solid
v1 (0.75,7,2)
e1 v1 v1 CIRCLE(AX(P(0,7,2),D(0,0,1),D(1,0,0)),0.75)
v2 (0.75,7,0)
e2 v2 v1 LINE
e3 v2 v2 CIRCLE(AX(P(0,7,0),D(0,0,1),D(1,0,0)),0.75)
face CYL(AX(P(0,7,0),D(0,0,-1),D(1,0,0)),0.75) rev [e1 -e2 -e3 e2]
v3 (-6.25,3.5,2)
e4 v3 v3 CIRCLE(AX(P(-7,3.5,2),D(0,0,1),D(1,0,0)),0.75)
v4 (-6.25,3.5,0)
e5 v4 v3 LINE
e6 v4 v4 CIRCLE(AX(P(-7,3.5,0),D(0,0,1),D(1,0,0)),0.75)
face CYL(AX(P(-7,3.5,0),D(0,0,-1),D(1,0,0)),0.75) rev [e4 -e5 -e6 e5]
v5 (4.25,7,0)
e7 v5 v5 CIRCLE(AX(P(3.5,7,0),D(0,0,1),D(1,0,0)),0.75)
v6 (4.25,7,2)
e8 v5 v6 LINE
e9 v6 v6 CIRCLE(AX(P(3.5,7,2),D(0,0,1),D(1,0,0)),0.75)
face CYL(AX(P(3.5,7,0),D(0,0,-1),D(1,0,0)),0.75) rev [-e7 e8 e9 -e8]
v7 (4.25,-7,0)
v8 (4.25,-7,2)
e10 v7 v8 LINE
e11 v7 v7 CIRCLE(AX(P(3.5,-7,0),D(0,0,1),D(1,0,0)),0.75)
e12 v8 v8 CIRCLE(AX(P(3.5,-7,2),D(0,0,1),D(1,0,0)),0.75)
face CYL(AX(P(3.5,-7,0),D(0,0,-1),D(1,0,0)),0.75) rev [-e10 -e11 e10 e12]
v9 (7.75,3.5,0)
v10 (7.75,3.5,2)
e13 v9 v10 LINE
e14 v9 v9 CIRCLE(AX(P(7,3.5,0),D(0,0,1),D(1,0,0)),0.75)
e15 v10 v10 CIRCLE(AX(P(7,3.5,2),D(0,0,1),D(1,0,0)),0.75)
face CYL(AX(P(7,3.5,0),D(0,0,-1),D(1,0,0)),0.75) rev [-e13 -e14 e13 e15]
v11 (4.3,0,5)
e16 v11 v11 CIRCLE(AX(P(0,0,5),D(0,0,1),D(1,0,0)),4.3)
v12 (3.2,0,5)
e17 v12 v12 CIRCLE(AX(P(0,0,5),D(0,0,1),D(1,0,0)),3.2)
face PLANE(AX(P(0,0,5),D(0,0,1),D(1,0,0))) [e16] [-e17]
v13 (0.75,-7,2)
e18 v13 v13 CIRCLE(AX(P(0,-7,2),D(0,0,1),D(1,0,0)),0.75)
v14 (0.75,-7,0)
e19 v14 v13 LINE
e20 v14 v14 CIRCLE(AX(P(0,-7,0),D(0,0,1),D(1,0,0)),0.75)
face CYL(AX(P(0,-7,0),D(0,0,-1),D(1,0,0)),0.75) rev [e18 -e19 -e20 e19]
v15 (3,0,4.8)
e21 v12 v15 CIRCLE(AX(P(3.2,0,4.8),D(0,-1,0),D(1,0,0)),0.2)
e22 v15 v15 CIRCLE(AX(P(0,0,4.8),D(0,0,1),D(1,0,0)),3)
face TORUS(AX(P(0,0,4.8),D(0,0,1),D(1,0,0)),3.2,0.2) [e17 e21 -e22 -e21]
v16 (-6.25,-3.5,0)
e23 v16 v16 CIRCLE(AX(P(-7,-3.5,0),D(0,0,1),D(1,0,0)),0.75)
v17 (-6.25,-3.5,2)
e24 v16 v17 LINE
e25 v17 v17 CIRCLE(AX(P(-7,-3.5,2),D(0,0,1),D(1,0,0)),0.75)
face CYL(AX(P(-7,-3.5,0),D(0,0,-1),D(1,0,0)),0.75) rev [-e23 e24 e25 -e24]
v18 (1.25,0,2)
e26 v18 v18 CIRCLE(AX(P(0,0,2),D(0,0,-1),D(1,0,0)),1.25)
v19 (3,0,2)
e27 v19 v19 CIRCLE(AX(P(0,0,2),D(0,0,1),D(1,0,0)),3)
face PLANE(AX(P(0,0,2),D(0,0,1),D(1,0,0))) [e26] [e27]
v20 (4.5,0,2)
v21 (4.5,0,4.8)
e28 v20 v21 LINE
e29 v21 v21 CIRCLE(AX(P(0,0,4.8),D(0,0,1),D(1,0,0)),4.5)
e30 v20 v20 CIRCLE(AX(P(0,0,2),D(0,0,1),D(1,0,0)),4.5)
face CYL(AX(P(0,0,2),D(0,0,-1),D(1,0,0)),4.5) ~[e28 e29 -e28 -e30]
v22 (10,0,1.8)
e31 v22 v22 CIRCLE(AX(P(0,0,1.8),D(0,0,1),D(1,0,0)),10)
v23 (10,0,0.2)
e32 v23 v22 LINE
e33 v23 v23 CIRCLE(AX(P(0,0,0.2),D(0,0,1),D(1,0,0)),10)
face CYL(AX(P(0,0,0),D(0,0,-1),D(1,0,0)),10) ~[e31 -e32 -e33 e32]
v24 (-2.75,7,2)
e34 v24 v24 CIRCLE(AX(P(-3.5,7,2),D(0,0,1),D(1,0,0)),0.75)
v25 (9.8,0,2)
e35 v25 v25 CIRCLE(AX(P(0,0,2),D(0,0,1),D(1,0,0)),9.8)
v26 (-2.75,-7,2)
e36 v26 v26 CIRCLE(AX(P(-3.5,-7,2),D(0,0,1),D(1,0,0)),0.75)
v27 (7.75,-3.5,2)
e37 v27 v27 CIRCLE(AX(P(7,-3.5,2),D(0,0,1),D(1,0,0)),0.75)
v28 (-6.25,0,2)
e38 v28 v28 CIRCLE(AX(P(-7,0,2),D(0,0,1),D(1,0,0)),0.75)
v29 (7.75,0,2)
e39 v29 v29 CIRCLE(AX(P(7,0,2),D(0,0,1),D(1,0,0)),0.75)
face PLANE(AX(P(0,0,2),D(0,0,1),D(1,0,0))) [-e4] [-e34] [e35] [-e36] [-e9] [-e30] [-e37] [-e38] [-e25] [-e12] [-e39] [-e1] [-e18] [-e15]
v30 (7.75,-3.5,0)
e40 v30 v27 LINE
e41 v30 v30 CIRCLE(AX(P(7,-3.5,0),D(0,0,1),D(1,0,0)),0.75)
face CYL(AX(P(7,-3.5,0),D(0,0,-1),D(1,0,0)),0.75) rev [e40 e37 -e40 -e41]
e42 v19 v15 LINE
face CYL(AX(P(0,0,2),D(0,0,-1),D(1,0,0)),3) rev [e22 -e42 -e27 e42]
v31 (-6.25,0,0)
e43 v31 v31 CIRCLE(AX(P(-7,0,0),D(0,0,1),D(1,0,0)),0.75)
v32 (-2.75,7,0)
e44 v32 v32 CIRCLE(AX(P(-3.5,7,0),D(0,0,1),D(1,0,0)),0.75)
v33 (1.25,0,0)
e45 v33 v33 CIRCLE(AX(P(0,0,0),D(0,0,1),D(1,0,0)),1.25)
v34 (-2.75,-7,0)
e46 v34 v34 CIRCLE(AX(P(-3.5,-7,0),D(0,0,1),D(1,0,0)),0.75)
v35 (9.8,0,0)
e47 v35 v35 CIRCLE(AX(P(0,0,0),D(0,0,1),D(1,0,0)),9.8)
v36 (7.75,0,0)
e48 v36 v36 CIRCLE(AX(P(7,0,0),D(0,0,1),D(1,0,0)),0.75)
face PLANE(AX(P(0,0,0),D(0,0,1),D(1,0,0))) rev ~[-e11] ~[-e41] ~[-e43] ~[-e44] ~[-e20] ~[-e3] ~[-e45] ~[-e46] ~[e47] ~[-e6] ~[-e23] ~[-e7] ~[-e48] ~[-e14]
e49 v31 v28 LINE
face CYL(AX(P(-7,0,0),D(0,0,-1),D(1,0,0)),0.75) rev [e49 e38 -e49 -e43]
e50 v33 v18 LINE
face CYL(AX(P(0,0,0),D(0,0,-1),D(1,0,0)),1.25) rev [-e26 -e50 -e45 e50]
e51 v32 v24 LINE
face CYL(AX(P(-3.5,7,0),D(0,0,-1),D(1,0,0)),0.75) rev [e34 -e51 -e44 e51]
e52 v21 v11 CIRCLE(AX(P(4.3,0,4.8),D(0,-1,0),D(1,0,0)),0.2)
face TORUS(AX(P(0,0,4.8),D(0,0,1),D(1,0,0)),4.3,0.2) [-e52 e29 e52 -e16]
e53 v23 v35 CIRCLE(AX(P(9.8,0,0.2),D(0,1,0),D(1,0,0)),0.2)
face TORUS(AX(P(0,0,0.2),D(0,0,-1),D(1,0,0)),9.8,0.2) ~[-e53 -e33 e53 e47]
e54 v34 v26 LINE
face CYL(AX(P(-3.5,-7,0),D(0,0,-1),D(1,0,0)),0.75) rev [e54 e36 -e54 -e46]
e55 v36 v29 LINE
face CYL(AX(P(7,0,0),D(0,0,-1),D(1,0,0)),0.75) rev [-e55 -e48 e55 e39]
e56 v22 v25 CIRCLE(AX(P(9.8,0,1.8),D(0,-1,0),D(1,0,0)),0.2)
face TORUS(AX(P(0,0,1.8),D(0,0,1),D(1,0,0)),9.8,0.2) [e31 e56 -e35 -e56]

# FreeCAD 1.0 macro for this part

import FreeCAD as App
import Part
import Sketcher


def edges_at(feature, points):
    """Names of the edges that pass closest to the given points."""
    edges = feature.Shape.Edges
    near = lambda p: min(range(len(edges)), key=lambda i: edges[i].distToShape(Part.Vertex(*p))[0])
    return sorted({f"Edge{near(p) + 1}" for p in points})

doc = App.newDocument("Part")
params = doc.addObject("Spreadsheet::Sheet", "Params")
for row, (alias, value) in enumerate([
    ("sketch1_diameter", "20 mm"),
    ("sketch1_diameter2", "1.5 mm"),
    ("pad1_length", "2 mm"),
    ("sketch2_diameter", "9 mm"),
    ("sketch2_diameter2", "6 mm"),
    ("pad2_length", "3 mm"),
    ("sketch3_diameter", "2.5 mm"),
    ("pocket1_length", "5 mm"),
    ("fillet_radius", "0.2 mm"),
], start=1):
    params.set(f"A{row}", alias)
    params.set(f"B{row}", "=" + value)
    params.setAlias(f"B{row}", alias)

body = doc.addObject("PartDesign::Body", "Body")

# Sketch on XY plane
sketch1 = body.newObject("Sketcher::SketchObject", "Sketch")
sketch1.AttachmentSupport = (doc.getObject("XY_Plane"), [""])
sketch1.MapMode = "FlatFace"
sketch1.addGeometry(Part.Circle(App.Vector(0, 0, 0), App.Vector(0, 0, 1), 10), False)
sketch1.addGeometry(Part.Circle(App.Vector(-3.5, -7, 0), App.Vector(0, 0, 1), 0.8), False)
sketch1.addGeometry(Part.Circle(App.Vector(-7, -3.5, 0), App.Vector(0, 0, 1), 0.8), False)
sketch1.addGeometry(Part.Circle(App.Vector(0, -7, 0), App.Vector(0, 0, 1), 0.8), False)
sketch1.addGeometry(Part.Circle(App.Vector(3.5, -7, 0), App.Vector(0, 0, 1), 0.8), False)
sketch1.addGeometry(Part.Circle(App.Vector(7, -3.5, 0), App.Vector(0, 0, 1), 0.8), False)
sketch1.addGeometry(Part.Circle(App.Vector(-7, 0, 0), App.Vector(0, 0, 1), 0.8), False)
sketch1.addGeometry(Part.Circle(App.Vector(-7, 3.5, 0), App.Vector(0, 0, 1), 0.8), False)
sketch1.addGeometry(Part.Circle(App.Vector(-3.5, 7, 0), App.Vector(0, 0, 1), 0.8), False)
sketch1.addGeometry(Part.Circle(App.Vector(7, 0, 0), App.Vector(0, 0, 1), 0.8), False)
sketch1.addGeometry(Part.Circle(App.Vector(7, 3.5, 0), App.Vector(0, 0, 1), 0.8), False)
sketch1.addGeometry(Part.Circle(App.Vector(0, 7, 0), App.Vector(0, 0, 1), 0.8), False)
sketch1.addGeometry(Part.Circle(App.Vector(3.5, 7, 0), App.Vector(0, 0, 1), 0.8), False)
sketch1.addConstraint(Sketcher.Constraint("Coincident", 0, 3, -1, 1))
sketch1.addConstraint(Sketcher.Constraint("Equal", 1, 2))
sketch1.addConstraint(Sketcher.Constraint("Equal", 2, 3))
sketch1.addConstraint(Sketcher.Constraint("Equal", 3, 4))
sketch1.addConstraint(Sketcher.Constraint("Equal", 4, 5))
sketch1.addConstraint(Sketcher.Constraint("Equal", 5, 6))
sketch1.addConstraint(Sketcher.Constraint("Equal", 6, 7))
sketch1.addConstraint(Sketcher.Constraint("Equal", 7, 8))
sketch1.addConstraint(Sketcher.Constraint("Equal", 8, 9))
sketch1.addConstraint(Sketcher.Constraint("Equal", 9, 10))
sketch1.addConstraint(Sketcher.Constraint("Equal", 10, 11))
sketch1.addConstraint(Sketcher.Constraint("Equal", 11, 12))
sketch1.addConstraint(Sketcher.Constraint("Symmetric", 5, 3, 7, 3, -1, 1))
sketch1.addConstraint(Sketcher.Constraint("Symmetric", 4, 3, 8, 3, -1, 1))
sketch1.addConstraint(Sketcher.Constraint("Symmetric", 6, 3, 9, 3, -1, 1))
sketch1.addConstraint(Sketcher.Constraint("Symmetric", 2, 3, 10, 3, -1, 1))
sketch1.addConstraint(Sketcher.Constraint("Symmetric", 3, 3, 11, 3, -1, 1))
sketch1.addConstraint(Sketcher.Constraint("Symmetric", 1, 3, 12, 3, -1, 1))
sketch1.addConstraint(Sketcher.Constraint("Symmetric", 1, 3, 4, 3, -2))
sketch1.addConstraint(Sketcher.Constraint("Symmetric", 2, 3, 5, 3, -2))
sketch1.addConstraint(Sketcher.Constraint("PointOnObject", 3, 3, -2))
sketch1.addConstraint(Sketcher.Constraint("PointOnObject", 6, 3, -1))
sketch1.addConstraint(Sketcher.Constraint("Horizontal", 1, 3, 3, 3))
sketch1.addConstraint(Sketcher.Constraint("Vertical", 2, 3, 6, 3))
sketch1.addConstraint(Sketcher.Constraint("Diameter", 0, 20.0))
sketch1.addConstraint(Sketcher.Constraint("Diameter", 1, 1.5))
sketch1.addConstraint(Sketcher.Constraint("DistanceY", 1, 3, -1, 1, 7.0))
sketch1.addConstraint(Sketcher.Constraint("DistanceX", 2, 3, -1, 1, 7.0))
sketch1.addConstraint(Sketcher.Constraint("DistanceX", 1, 3, 4, 3, 7.0))
sketch1.addConstraint(Sketcher.Constraint("DistanceY", 2, 3, 7, 3, 7.0))
sketch1.setExpression("Constraints[24]", "Params.sketch1_diameter")
sketch1.setExpression("Constraints[25]", "Params.sketch1_diameter2")
pad1 = body.newObject("PartDesign::Pad", "Pad")
pad1.Profile = sketch1
pad1.setExpression("Length", "Params.pad1_length")

# Sketch on XY plane
sketch2 = body.newObject("Sketcher::SketchObject", "Sketch001")
sketch2.AttachmentSupport = (doc.getObject("XY_Plane"), [""])
sketch2.MapMode = "FlatFace"
sketch2.AttachmentOffset = App.Placement(App.Vector(0, 0, 2), App.Rotation())
sketch2.addGeometry(Part.Circle(App.Vector(0, 0, 0), App.Vector(0, 0, 1), 4.5), False)
sketch2.addGeometry(Part.Circle(App.Vector(0, 0, 0), App.Vector(0, 0, 1), 3), False)
sketch2.addConstraint(Sketcher.Constraint("Coincident", 0, 3, -1, 1))
sketch2.addConstraint(Sketcher.Constraint("Coincident", 1, 3, -1, 1))
sketch2.addConstraint(Sketcher.Constraint("Diameter", 0, 9.0))
sketch2.addConstraint(Sketcher.Constraint("Diameter", 1, 6.0))
sketch2.setExpression("Constraints[2]", "Params.sketch2_diameter")
sketch2.setExpression("Constraints[3]", "Params.sketch2_diameter2")
pad2 = body.newObject("PartDesign::Pad", "Pad001")
pad2.Profile = sketch2
pad2.setExpression("Length", "Params.pad2_length")

# Sketch on XY plane
sketch3 = body.newObject("Sketcher::SketchObject", "Sketch002")
sketch3.AttachmentSupport = (doc.getObject("XY_Plane"), [""])
sketch3.MapMode = "FlatFace"
sketch3.addGeometry(Part.Circle(App.Vector(0, 0, 0), App.Vector(0, 0, 1), 1.2), False)
sketch3.addConstraint(Sketcher.Constraint("Coincident", 0, 3, -1, 1))
sketch3.addConstraint(Sketcher.Constraint("Diameter", 0, 2.5))
sketch3.setExpression("Constraints[1]", "Params.sketch3_diameter")
pocket1 = body.newObject("PartDesign::Pocket", "Pocket")
pocket1.Profile = sketch3
pocket1.setExpression("Length", "Params.pocket1_length")
pocket1.Reversed = True
doc.recompute()

fillet = body.newObject("PartDesign::Fillet", "Fillet")
fillet.Base = (pocket1, edges_at(pocket1, [
    (-10, 0, 0),
    (-10, 0, 2),
    (-4.5, 0, 5),
    (-3, 0, 5),
]))
fillet.setExpression("Radius", "Params.fillet_radius")

doc.recompute()
